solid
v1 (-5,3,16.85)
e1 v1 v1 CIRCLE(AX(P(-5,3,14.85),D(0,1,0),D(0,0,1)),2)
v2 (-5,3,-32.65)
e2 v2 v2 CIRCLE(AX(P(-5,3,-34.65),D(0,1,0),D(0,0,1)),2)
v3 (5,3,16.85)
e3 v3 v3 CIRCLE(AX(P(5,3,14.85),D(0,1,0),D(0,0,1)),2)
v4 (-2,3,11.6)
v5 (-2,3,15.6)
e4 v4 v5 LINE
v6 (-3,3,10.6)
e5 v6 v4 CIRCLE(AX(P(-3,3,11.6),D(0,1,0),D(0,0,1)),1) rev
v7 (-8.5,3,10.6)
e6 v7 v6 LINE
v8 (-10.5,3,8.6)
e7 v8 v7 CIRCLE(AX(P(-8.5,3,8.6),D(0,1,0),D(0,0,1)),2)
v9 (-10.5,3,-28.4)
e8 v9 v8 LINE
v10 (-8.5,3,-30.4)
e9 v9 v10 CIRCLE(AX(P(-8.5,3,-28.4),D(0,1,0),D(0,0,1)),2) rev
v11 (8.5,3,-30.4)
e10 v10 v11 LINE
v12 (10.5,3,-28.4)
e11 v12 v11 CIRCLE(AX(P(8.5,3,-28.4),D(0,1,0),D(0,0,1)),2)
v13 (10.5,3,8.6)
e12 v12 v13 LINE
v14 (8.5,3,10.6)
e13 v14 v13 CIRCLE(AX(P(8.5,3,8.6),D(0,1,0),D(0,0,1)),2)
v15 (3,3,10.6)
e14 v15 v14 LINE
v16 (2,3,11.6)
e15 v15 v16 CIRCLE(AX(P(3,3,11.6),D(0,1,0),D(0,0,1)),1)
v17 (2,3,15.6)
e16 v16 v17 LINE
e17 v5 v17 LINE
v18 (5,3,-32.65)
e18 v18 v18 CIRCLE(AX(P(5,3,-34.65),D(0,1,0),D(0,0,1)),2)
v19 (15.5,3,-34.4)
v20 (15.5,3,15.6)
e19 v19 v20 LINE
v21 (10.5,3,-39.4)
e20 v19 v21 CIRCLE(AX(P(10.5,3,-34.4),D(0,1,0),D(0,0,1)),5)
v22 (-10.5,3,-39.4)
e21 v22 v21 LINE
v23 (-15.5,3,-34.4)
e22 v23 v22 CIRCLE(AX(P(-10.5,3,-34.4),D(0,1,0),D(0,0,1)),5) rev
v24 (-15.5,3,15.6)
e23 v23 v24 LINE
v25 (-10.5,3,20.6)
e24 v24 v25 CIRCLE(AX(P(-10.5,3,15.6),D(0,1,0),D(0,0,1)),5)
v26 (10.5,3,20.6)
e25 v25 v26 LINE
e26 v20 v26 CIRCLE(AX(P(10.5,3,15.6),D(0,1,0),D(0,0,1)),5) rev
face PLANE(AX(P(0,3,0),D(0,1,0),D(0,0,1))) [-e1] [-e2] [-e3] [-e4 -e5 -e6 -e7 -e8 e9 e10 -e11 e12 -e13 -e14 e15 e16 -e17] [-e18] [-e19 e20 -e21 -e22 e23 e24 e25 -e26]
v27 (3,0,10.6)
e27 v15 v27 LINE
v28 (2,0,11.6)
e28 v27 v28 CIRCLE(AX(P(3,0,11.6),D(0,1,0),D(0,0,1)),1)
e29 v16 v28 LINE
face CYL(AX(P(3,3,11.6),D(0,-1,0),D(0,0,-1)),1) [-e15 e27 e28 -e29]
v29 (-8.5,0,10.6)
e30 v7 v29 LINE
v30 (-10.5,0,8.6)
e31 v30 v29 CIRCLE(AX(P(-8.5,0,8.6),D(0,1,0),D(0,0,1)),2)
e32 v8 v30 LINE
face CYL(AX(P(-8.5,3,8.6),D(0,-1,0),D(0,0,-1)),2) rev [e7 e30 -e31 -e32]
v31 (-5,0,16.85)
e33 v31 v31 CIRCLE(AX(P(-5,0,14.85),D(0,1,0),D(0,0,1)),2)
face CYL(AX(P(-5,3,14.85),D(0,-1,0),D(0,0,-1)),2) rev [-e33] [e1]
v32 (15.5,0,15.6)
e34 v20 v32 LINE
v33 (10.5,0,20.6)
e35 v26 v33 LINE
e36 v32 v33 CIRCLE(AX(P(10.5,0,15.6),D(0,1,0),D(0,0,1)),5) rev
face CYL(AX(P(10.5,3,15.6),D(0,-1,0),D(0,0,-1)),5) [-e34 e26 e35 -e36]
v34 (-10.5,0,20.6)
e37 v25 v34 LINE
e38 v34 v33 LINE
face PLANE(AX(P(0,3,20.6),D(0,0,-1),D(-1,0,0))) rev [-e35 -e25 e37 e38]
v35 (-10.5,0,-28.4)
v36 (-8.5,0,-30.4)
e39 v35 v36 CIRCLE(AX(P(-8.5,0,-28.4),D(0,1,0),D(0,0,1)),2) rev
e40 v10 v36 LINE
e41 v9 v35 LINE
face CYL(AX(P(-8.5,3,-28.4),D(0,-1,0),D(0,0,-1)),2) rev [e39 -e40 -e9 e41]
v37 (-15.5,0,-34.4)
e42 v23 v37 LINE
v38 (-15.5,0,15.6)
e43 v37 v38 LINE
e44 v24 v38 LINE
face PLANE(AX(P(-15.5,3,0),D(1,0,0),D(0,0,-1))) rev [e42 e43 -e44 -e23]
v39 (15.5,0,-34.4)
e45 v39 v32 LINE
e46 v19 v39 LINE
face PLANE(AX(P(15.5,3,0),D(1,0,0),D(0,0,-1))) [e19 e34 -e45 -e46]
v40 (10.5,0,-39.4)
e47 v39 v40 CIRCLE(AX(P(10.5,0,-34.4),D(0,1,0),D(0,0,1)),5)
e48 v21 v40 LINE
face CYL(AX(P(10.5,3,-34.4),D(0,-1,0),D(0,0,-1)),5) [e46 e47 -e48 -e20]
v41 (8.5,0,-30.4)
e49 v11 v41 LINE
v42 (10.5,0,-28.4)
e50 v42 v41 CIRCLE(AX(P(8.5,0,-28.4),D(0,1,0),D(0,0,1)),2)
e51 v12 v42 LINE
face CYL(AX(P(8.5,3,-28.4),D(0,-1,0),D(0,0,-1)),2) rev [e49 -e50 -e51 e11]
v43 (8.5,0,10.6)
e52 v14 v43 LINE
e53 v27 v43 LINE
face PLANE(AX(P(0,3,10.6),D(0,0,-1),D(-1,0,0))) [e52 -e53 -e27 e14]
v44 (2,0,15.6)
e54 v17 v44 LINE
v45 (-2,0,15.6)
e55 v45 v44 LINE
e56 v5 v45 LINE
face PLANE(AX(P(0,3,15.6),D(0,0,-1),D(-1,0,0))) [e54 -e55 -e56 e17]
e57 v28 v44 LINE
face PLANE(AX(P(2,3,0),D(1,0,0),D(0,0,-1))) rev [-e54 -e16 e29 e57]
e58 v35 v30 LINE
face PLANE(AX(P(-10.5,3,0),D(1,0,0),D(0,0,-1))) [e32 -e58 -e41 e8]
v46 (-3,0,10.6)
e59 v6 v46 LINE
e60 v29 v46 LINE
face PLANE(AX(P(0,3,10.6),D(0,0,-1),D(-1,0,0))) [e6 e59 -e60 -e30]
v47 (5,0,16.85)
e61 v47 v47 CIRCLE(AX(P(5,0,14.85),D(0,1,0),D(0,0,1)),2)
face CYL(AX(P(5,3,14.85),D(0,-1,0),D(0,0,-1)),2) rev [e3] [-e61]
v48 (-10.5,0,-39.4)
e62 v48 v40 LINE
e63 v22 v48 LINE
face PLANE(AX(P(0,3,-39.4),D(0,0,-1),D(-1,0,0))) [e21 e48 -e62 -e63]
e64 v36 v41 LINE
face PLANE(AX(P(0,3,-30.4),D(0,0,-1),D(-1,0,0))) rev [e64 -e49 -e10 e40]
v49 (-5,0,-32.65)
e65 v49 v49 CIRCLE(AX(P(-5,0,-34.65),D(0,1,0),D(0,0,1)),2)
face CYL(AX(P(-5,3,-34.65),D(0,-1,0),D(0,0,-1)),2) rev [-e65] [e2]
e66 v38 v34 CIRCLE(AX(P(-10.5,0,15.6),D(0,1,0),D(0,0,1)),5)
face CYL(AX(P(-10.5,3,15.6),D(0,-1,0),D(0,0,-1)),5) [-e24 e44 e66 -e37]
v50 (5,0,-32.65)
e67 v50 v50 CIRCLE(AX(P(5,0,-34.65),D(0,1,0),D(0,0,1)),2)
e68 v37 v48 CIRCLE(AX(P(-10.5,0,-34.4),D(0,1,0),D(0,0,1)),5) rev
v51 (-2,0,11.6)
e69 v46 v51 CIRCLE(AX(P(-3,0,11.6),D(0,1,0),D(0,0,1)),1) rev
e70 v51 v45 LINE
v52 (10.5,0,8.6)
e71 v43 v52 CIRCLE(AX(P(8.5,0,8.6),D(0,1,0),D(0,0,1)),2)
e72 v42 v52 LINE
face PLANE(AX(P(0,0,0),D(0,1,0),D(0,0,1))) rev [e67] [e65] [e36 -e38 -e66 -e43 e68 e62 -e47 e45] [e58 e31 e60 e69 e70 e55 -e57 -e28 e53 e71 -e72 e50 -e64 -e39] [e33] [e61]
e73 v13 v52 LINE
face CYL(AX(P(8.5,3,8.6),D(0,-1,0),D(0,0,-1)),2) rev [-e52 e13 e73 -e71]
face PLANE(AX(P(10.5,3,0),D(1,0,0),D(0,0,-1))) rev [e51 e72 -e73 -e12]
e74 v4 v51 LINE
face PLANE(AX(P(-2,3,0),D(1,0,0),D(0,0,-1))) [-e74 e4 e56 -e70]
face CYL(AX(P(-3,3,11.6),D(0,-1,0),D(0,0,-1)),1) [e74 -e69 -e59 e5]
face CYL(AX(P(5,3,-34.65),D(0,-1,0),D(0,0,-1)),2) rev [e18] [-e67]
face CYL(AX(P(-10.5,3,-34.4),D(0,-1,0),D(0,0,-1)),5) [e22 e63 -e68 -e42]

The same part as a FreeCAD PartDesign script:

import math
import FreeCAD as App
import Part
import Sketcher
Q = App.Units.Quantity

doc = App.newDocument("Part")
body = doc.addObject("PartDesign::Body", "Body")

# Sketch on XZ plane
sketch1 = body.newObject("Sketcher::SketchObject", "Sketch")
sketch1.AttachmentSupport = (doc.getObject("XZ_Plane"), [""])
sketch1.MapMode = "FlatFace"
sketch1.addGeometry(Part.ArcOfCircle(Part.Circle(App.Vector(-10.5, -34.4, 0), App.Vector(0, 0, 1), 5), math.radians(180), math.radians(270)), False)
sketch1.addGeometry(Part.LineSegment(App.Vector(-15.5, -34.4, 0), App.Vector(-15.5, 15.6, 0)), False)
sketch1.addGeometry(Part.ArcOfCircle(Part.Circle(App.Vector(-10.5, 15.6, 0), App.Vector(0, 0, 1), 5), math.radians(90), math.radians(180)), False)
sketch1.addGeometry(Part.LineSegment(App.Vector(-10.5, 20.6, 0), App.Vector(10.5, 20.6, 0)), False)
sketch1.addGeometry(Part.ArcOfCircle(Part.Circle(App.Vector(10.5, 15.6, 0), App.Vector(0, 0, 1), 5), math.radians(0), math.radians(90)), False)
sketch1.addGeometry(Part.LineSegment(App.Vector(15.5, 15.6, 0), App.Vector(15.5, -34.4, 0)), False)
sketch1.addGeometry(Part.ArcOfCircle(Part.Circle(App.Vector(10.5, -34.4, 0), App.Vector(0, 0, 1), 5), math.radians(-90), math.radians(0)), False)
sketch1.addGeometry(Part.LineSegment(App.Vector(10.5, -39.4, 0), App.Vector(-10.5, -39.4, 0)), False)
sketch1.addGeometry(Part.Circle(App.Vector(5, 14.85, 0), App.Vector(0, 0, 1), 2), False)
sketch1.addGeometry(Part.Circle(App.Vector(-5, 14.85, 0), App.Vector(0, 0, 1), 2), False)
sketch1.addGeometry(Part.LineSegment(App.Vector(-3, 10.6, 0), App.Vector(-8.5, 10.6, 0)), False)
sketch1.addGeometry(Part.ArcOfCircle(Part.Circle(App.Vector(-8.5, 8.6, 0), App.Vector(0, 0, 1), 2), math.radians(90), math.radians(180)), False)
sketch1.addGeometry(Part.LineSegment(App.Vector(-10.5, 8.6, 0), App.Vector(-10.5, -28.4, 0)), False)
sketch1.addGeometry(Part.ArcOfCircle(Part.Circle(App.Vector(-8.5, -28.4, 0), App.Vector(0, 0, 1), 2), math.radians(-180), math.radians(-90)), False)
sketch1.addGeometry(Part.LineSegment(App.Vector(-8.5, -30.4, 0), App.Vector(8.5, -30.4, 0)), False)
sketch1.addGeometry(Part.ArcOfCircle(Part.Circle(App.Vector(8.5, -28.4, 0), App.Vector(0, 0, 1), 2), math.radians(-90), math.radians(0)), False)
sketch1.addGeometry(Part.LineSegment(App.Vector(10.5, -28.4, 0), App.Vector(10.5, 8.6, 0)), False)
sketch1.addGeometry(Part.ArcOfCircle(Part.Circle(App.Vector(8.5, 8.6, 0), App.Vector(0, 0, 1), 2), math.radians(0), math.radians(90)), False)
sketch1.addGeometry(Part.LineSegment(App.Vector(8.5, 10.6, 0), App.Vector(3, 10.6, 0)), False)
sketch1.addGeometry(Part.ArcOfCircle(Part.Circle(App.Vector(3, 11.6, 0), App.Vector(0, 0, 1), 1), math.radians(-180), math.radians(-90)), False)
sketch1.addGeometry(Part.LineSegment(App.Vector(2, 11.6, 0), App.Vector(2, 15.6, 0)), False)
sketch1.addGeometry(Part.LineSegment(App.Vector(2, 15.6, 0), App.Vector(-2, 15.6, 0)), False)
sketch1.addGeometry(Part.LineSegment(App.Vector(-2, 15.6, 0), App.Vector(-2, 11.6, 0)), False)
sketch1.addGeometry(Part.ArcOfCircle(Part.Circle(App.Vector(-3, 11.6, 0), App.Vector(0, 0, 1), 1), math.radians(-90), math.radians(0)), False)
sketch1.addGeometry(Part.Circle(App.Vector(5, -34.65, 0), App.Vector(0, 0, 1), 2), False)
sketch1.addGeometry(Part.Circle(App.Vector(-5, -34.65, 0), App.Vector(0, 0, 1), 2), False)
sketch1.addConstraint(Sketcher.Constraint("Tangent", 0, 1, 1, 1))
sketch1.addConstraint(Sketcher.Constraint("Tangent", 1, 2, 2, 2))
sketch1.addConstraint(Sketcher.Constraint("Tangent", 2, 1, 3, 1))
sketch1.addConstraint(Sketcher.Constraint("Tangent", 3, 2, 4, 2))
sketch1.addConstraint(Sketcher.Constraint("Tangent", 4, 1, 5, 1))
sketch1.addConstraint(Sketcher.Constraint("Tangent", 5, 2, 6, 2))
sketch1.addConstraint(Sketcher.Constraint("Tangent", 6, 1, 7, 1))
sketch1.addConstraint(Sketcher.Constraint("Tangent", 7, 2, 0, 2))
sketch1.addConstraint(Sketcher.Constraint("Tangent", 10, 2, 11, 1))
sketch1.addConstraint(Sketcher.Constraint("Tangent", 11, 2, 12, 1))
sketch1.addConstraint(Sketcher.Constraint("Tangent", 12, 2, 13, 1))
sketch1.addConstraint(Sketcher.Constraint("Tangent", 13, 2, 14, 1))
sketch1.addConstraint(Sketcher.Constraint("Tangent", 14, 2, 15, 1))
sketch1.addConstraint(Sketcher.Constraint("Tangent", 15, 2, 16, 1))
sketch1.addConstraint(Sketcher.Constraint("Tangent", 16, 2, 17, 1))
sketch1.addConstraint(Sketcher.Constraint("Tangent", 17, 2, 18, 1))
sketch1.addConstraint(Sketcher.Constraint("Tangent", 18, 2, 19, 2))
sketch1.addConstraint(Sketcher.Constraint("Tangent", 19, 1, 20, 1))
sketch1.addConstraint(Sketcher.Constraint("Coincident", 20, 2, 21, 1))
sketch1.addConstraint(Sketcher.Constraint("Coincident", 21, 2, 22, 1))
sketch1.addConstraint(Sketcher.Constraint("Tangent", 22, 2, 23, 2))
sketch1.addConstraint(Sketcher.Constraint("Tangent", 23, 1, 10, 1))
sketch1.addConstraint(Sketcher.Constraint("Vertical", 1))
sketch1.addConstraint(Sketcher.Constraint("Horizontal", 3))
sketch1.addConstraint(Sketcher.Constraint("Vertical", 5))
sketch1.addConstraint(Sketcher.Constraint("Horizontal", 7))
sketch1.addConstraint(Sketcher.Constraint("Horizontal", 10))
sketch1.addConstraint(Sketcher.Constraint("Vertical", 12))
sketch1.addConstraint(Sketcher.Constraint("Horizontal", 14))
sketch1.addConstraint(Sketcher.Constraint("Vertical", 16))
sketch1.addConstraint(Sketcher.Constraint("Horizontal", 18))
sketch1.addConstraint(Sketcher.Constraint("Vertical", 20))
sketch1.addConstraint(Sketcher.Constraint("Horizontal", 21))
sketch1.addConstraint(Sketcher.Constraint("Vertical", 22))
sketch1.addConstraint(Sketcher.Constraint("Equal", 0, 2))
sketch1.addConstraint(Sketcher.Constraint("Equal", 2, 4))
sketch1.addConstraint(Sketcher.Constraint("Equal", 4, 6))
sketch1.addConstraint(Sketcher.Constraint("Equal", 8, 9))
sketch1.addConstraint(Sketcher.Constraint("Equal", 9, 11))
sketch1.addConstraint(Sketcher.Constraint("Equal", 11, 13))
sketch1.addConstraint(Sketcher.Constraint("Equal", 13, 15))
sketch1.addConstraint(Sketcher.Constraint("Equal", 15, 17))
sketch1.addConstraint(Sketcher.Constraint("Equal", 19, 23))
sketch1.addConstraint(Sketcher.Constraint("Equal", 17, 24))
sketch1.addConstraint(Sketcher.Constraint("Equal", 24, 25))
sketch1.addConstraint(Sketcher.Constraint("Symmetric", 8, 3, 9, 3, -2))
sketch1.addConstraint(Sketcher.Constraint("Symmetric", 11, 3, 17, 3, -2))
sketch1.addConstraint(Sketcher.Constraint("Symmetric", 24, 3, 25, 3, -2))
sketch1.addConstraint(Sketcher.Constraint("Horizontal", 4, 1, 20, 2))
sketch1.addConstraint(Sketcher.Constraint("Vertical", 8, 3, 24, 3))
sketch1.addConstraint(Sketcher.Constraint("Vertical", 7, 2, 11, 2))
sketch1.addConstraint(Sketcher.Constraint("Vertical", 6, 1, 15, 2))
sketch1.addConstraint(Sketcher.Constraint("Equal", 10, 18))
sketch1.addConstraint(Sketcher.Constraint("Equal", 21, 20))
sketch1.addConstraint(Sketcher.Constraint("Diameter", 8, Q("4 mm")))
sketch1.addConstraint(Sketcher.Constraint("Radius", 0, Q("5 mm")))
sketch1.addConstraint(Sketcher.Constraint("Radius", 19, Q("1 mm")))
sketch1.addConstraint(Sketcher.Constraint("DistanceX", 3, 1, 3, 2, Q("21 mm")))
sketch1.addConstraint(Sketcher.Constraint("DistanceX", 21, 2, 21, 1, Q("4 mm")))
sketch1.addConstraint(Sketcher.Constraint("DistanceY", 1, 1, 1, 2, Q("50 mm")))
sketch1.addConstraint(Sketcher.Constraint("DistanceY", 12, 2, 12, 1, Q("37 mm")))
sketch1.addConstraint(Sketcher.Constraint("DistanceX", -1, 1, 8, 3, Q("5 mm")))
sketch1.addConstraint(Sketcher.Constraint("DistanceY", 0, 3, -1, 1, Q("34.4 mm")))
sketch1.addConstraint(Sketcher.Constraint("DistanceY", -1, 1, 8, 3, Q("14.85 mm")))
sketch1.addConstraint(Sketcher.Constraint("DistanceY", 24, 3, -1, 1, Q("34.65 mm")))
pad1 = body.newObject("PartDesign::Pad", "Pad")
pad1.Profile = sketch1
pad1.Length = 3
pad1.Reversed = True

doc.recompute()
